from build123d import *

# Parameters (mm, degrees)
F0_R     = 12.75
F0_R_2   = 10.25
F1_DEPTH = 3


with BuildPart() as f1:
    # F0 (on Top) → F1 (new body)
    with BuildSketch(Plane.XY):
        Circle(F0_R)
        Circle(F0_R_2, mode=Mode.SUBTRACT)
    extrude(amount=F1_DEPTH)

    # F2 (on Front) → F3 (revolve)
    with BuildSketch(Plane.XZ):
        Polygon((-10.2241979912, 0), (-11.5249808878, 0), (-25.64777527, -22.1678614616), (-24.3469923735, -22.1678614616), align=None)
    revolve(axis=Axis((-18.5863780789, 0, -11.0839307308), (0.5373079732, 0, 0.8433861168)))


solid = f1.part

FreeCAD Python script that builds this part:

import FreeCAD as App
import Part
import Sketcher

V = App.Vector


def add_polygon(sketch, points):
    """Adds a closed chain of lines whose ends are joined by coincident constraints."""
    first, n = sketch.GeometryCount, len(points)
    for a, b in zip(points, points[1:] + points[:1]):
        sketch.addGeometry(Part.LineSegment(App.Vector(*a, 0), App.Vector(*b, 0)), False)
    for i in range(n):
        sketch.addConstraint(Sketcher.Constraint("Coincident", first + i, 2, first + (i + 1) % n, 1))

doc = App.newDocument("Part")
params = doc.addObject("Spreadsheet::Sheet", "Params")
for row, (alias, value) in enumerate([
    ("sketch1_diameter", "25.5 mm"),
    ("sketch1_diameter2", "20.5 mm"),
    ("pad1_length", "3 mm"),
    ("revolution_angle", "360 deg"),
], start=1):
    params.set(f"A{row}", alias)
    params.set(f"B{row}", "=" + value)
    params.setAlias(f"B{row}", alias)

body = doc.addObject("PartDesign::Body", "Body")

# Sketch on XY plane
sketch1 = body.newObject("Sketcher::SketchObject", "Sketch")
sketch1.AttachmentSupport = (doc.getObject("XY_Plane"), [""])
sketch1.MapMode = "FlatFace"
sketch1.addGeometry(Part.Circle(V(0, 0, 0), V(0, 0, 1), 13), False)
sketch1.addGeometry(Part.Circle(V(0, 0, 0), V(0, 0, 1), 10), False)
sketch1.addConstraint(Sketcher.Constraint("Coincident", 0, 3, -1, 1))
sketch1.addConstraint(Sketcher.Constraint("Coincident", 1, 3, -1, 1))
sketch1.addConstraint(Sketcher.Constraint("Diameter", 0, 25.5))
sketch1.addConstraint(Sketcher.Constraint("Diameter", 1, 20.5))
sketch1.setExpression("Constraints[2]", "Params.sketch1_diameter")
sketch1.setExpression("Constraints[3]", "Params.sketch1_diameter2")
pad1 = body.newObject("PartDesign::Pad", "Pad")
pad1.Profile = sketch1
pad1.setExpression("Length", "Params.pad1_length")

# Sketch on XZ plane
sketch2 = body.newObject("Sketcher::SketchObject", "Sketch001")
sketch2.AttachmentSupport = (doc.getObject("XZ_Plane"), [""])
sketch2.MapMode = "FlatFace"
add_polygon(sketch2, [(-10.2, 0), (-11.5, 0), (-25.6, -22.2), (-24.3, -22.2)])  # lines 0-3
sketch2.addGeometry(Part.LineSegment(V(-25.6, -22.2, 0), V(-11.1, 0.6, 0)), True)  # axis
sketch2.addConstraint(Sketcher.Constraint("Horizontal", 0))
sketch2.addConstraint(Sketcher.Constraint("Horizontal", 2))
sketch2.addConstraint(Sketcher.Constraint("Coincident", 4, 1, 1, 2))
sketch2.addConstraint(Sketcher.Constraint("PointOnObject", 0, 2, -1))
sketch2.addConstraint(Sketcher.Constraint("Parallel", 1, 3))
sketch2.addConstraint(Sketcher.Constraint("Parallel", 3, 4))
sketch2.addConstraint(Sketcher.Constraint("DistanceX", 0, 2, 0, 1, 1.300783))
sketch2.addConstraint(Sketcher.Constraint("DistanceX", 0, 2, -1, 1, 11.524981))
sketch2.addConstraint(Sketcher.Constraint("DistanceY", 1, 2, -1, 1, 22.167861))
sketch2.addConstraint(Sketcher.Constraint("DistanceY", -1, 1, 4, 2, 0.58946))
sketch2.addConstraint(Sketcher.Constraint("DistanceX", 2, 2, 0, 2, 12.822011))
revolution = body.newObject("PartDesign::Revolution", "Revolution")
revolution.Profile = sketch2
revolution.ReferenceAxis = (sketch2, ["Axis0"])
revolution.setExpression("Angle", "Params.revolution_angle")

doc.recompute()
